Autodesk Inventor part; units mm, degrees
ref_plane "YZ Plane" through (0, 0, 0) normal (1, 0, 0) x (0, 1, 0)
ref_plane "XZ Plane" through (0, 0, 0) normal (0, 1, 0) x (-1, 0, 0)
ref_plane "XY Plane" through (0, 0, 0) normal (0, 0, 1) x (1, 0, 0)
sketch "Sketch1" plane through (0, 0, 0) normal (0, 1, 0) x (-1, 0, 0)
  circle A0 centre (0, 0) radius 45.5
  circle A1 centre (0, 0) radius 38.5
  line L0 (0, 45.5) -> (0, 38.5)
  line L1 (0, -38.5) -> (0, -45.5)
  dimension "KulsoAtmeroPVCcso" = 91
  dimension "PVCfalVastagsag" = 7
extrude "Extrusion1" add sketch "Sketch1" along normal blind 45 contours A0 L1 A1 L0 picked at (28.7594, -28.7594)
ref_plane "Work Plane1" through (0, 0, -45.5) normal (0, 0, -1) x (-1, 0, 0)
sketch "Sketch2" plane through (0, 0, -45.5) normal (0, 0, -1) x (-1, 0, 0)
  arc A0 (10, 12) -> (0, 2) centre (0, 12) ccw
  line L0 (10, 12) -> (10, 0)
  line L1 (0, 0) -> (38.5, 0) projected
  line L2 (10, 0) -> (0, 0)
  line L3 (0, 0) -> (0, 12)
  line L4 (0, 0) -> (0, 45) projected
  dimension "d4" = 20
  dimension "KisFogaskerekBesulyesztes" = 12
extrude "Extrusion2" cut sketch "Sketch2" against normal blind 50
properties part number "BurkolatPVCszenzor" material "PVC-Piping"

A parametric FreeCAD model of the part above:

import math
import FreeCAD as App
import Part
import Sketcher
from FreeCAD import Vector

doc = App.newDocument("Part")
params = doc.addObject("Spreadsheet::Sheet", "Params")
for row, (alias, value) in enumerate([
    ("sketch1_radius", "45.5 mm"),
    ("sketch1_height", "7 mm"),
    ("pad1_length", "45 mm"),
    ("sketch2_radius", "10 mm"),
    ("sketch2_height", "12 mm"),
    ("pocket1_length", "50 mm"),
], start=1):
    params.set(f"A{row}", alias)
    params.set(f"B{row}", "=" + value)
    params.setAlias(f"B{row}", alias)

body = doc.addObject("PartDesign::Body", "Body")

# Sketch on XZ plane
sketch1 = body.newObject("Sketcher::SketchObject", "Sketch")
sketch1.AttachmentSupport = (doc.getObject("XZ_Plane"), [""])
sketch1.MapMode = "FlatFace"
sketch1.addGeometry(Part.ArcOfCircle(Part.Circle(Vector(0, 0, 0), Vector(0, 0, 1), 46), math.radians(90), math.radians(270)), False)
sketch1.addGeometry(Part.LineSegment(Vector(0, 46, 0), Vector(0, 38, 0)), False)
sketch1.addGeometry(Part.ArcOfCircle(Part.Circle(Vector(0, 0, 0), Vector(0, 0, 1), 38), math.radians(90), math.radians(270)), False)
sketch1.addGeometry(Part.LineSegment(Vector(0, -38, 0), Vector(0, -46, 0)), False)
sketch1.addConstraint(Sketcher.Constraint("Coincident", 0, 1, 1, 1))
sketch1.addConstraint(Sketcher.Constraint("Coincident", 1, 2, 2, 1))
sketch1.addConstraint(Sketcher.Constraint("Coincident", 2, 2, 3, 1))
sketch1.addConstraint(Sketcher.Constraint("Coincident", 3, 2, 0, 2))
sketch1.addConstraint(Sketcher.Constraint("Vertical", 1))
sketch1.addConstraint(Sketcher.Constraint("Vertical", 3))
sketch1.addConstraint(Sketcher.Constraint("Coincident", 0, 3, -1, 1))
sketch1.addConstraint(Sketcher.Constraint("Coincident", 2, 3, -1, 1))
sketch1.addConstraint(Sketcher.Constraint("PointOnObject", 0, 1, -2))
sketch1.addConstraint(Sketcher.Constraint("PointOnObject", 2, 2, -2))
sketch1.addConstraint(Sketcher.Constraint("Radius", 0, 45.5))
sketch1.addConstraint(Sketcher.Constraint("DistanceY", 1, 2, 1, 1, 7.0))
sketch1.setExpression("Constraints[10]", "Params.sketch1_radius")
sketch1.setExpression("Constraints[11]", "Params.sketch1_height")
pad1 = body.newObject("PartDesign::Pad", "Pad")
pad1.Profile = sketch1
pad1.setExpression("Length", "Params.pad1_length")
pad1.Reversed = True

# Sketch on XY plane
sketch2 = body.newObject("Sketcher::SketchObject", "Sketch001")
sketch2.AttachmentSupport = (doc.getObject("XY_Plane"), [""])
sketch2.MapMode = "FlatFace"
sketch2.AttachmentOffset = App.Placement(Vector(0, 0, -45.5), App.Rotation())
sketch2.addGeometry(Part.LineSegment(Vector(-10, 0, 0), Vector(-10, 12, 0)), False)
sketch2.addGeometry(Part.ArcOfCircle(Part.Circle(Vector(0, 12, 0), Vector(0, 0, 1), 10), math.radians(-90), math.radians(180)), False)
sketch2.addGeometry(Part.LineSegment(Vector(0, 2, 0), Vector(0, 0, 0)), False)
sketch2.addGeometry(Part.LineSegment(Vector(0, 0, 0), Vector(-10, 0, 0)), False)
sketch2.addConstraint(Sketcher.Constraint("Tangent", 0, 2, 1, 2))
sketch2.addConstraint(Sketcher.Constraint("Coincident", 1, 1, 2, 1))
sketch2.addConstraint(Sketcher.Constraint("Coincident", 2, 2, 3, 1))
sketch2.addConstraint(Sketcher.Constraint("Coincident", 3, 2, 0, 1))
sketch2.addConstraint(Sketcher.Constraint("Vertical", 0))
sketch2.addConstraint(Sketcher.Constraint("Vertical", 2))
sketch2.addConstraint(Sketcher.Constraint("Horizontal", 3))
sketch2.addConstraint(Sketcher.Constraint("Coincident", 2, 2, -1, 1))
sketch2.addConstraint(Sketcher.Constraint("PointOnObject", 1, 3, -2))
sketch2.addConstraint(Sketcher.Constraint("Radius", 1, 10.0))
sketch2.addConstraint(Sketcher.Constraint("DistanceY", 0, 1, 0, 2, 12.0))
sketch2.setExpression("Constraints[9]", "Params.sketch2_radius")
sketch2.setExpression("Constraints[10]", "Params.sketch2_height")
pocket1 = body.newObject("PartDesign::Pocket", "Pocket")
pocket1.Profile = sketch2
pocket1.setExpression("Length", "Params.pocket1_length")
pocket1.Reversed = True

doc.recompute()
